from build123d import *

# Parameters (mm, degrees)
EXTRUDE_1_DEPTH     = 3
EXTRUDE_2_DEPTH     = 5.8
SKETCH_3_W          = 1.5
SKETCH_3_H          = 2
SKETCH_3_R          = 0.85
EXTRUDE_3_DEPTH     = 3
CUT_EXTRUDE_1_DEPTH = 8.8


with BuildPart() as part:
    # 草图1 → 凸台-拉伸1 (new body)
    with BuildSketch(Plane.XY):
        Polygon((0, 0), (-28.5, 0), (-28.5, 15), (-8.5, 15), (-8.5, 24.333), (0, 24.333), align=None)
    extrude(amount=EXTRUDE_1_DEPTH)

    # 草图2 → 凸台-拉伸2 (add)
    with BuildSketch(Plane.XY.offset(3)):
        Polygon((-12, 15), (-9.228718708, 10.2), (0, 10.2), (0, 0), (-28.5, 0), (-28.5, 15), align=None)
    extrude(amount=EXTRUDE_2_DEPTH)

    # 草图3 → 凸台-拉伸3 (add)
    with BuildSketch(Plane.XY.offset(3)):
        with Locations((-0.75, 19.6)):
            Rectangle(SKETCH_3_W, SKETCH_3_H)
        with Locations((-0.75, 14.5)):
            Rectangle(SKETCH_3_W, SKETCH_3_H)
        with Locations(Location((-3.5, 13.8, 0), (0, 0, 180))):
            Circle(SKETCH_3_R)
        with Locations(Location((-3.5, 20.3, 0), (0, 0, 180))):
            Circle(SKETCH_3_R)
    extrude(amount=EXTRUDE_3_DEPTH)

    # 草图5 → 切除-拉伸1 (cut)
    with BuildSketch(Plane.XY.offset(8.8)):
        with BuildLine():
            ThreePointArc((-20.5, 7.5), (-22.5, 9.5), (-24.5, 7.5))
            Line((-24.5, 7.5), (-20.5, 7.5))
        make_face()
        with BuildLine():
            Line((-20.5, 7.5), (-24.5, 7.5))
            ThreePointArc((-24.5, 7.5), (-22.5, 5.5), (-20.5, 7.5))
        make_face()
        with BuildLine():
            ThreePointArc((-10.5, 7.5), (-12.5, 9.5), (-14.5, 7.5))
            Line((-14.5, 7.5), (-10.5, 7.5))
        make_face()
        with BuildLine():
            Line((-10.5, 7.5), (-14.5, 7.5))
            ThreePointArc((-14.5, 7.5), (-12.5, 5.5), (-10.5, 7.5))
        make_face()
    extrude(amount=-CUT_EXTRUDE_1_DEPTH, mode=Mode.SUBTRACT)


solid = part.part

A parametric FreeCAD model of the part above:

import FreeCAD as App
import Part
import Sketcher
from FreeCAD import Vector
Q = App.Units.Quantity


def add_polygon(sketch, points):
    """Adds a closed chain of lines whose ends are joined by coincident constraints."""
    first, n = sketch.GeometryCount, len(points)
    for a, b in zip(points, points[1:] + points[:1]):
        sketch.addGeometry(Part.LineSegment(App.Vector(*a, 0), App.Vector(*b, 0)), False)
    for i in range(n):
        sketch.addConstraint(Sketcher.Constraint("Coincident", first + i, 2, first + (i + 1) % n, 1))

doc = App.newDocument("Part")
body = doc.addObject("PartDesign::Body", "Body")

# Sketch on XY plane
sketch1 = doc.addObject("Sketcher::SketchObject", "Sketch")
body.addObject(sketch1)
sketch1.AttachmentSupport = (doc.XY_Plane, [""])
sketch1.MapMode = "FlatFace"
add_polygon(sketch1, [(-28, 0), (0, 0), (0, 24), (-8, 24), (-8, 15), (-28, 15)])  # lines 0-5
sketch1.addConstraint(Sketcher.Constraint("Horizontal", 0))
sketch1.addConstraint(Sketcher.Constraint("Vertical", 1))
sketch1.addConstraint(Sketcher.Constraint("Horizontal", 2))
sketch1.addConstraint(Sketcher.Constraint("Vertical", 3))
sketch1.addConstraint(Sketcher.Constraint("Horizontal", 4))
sketch1.addConstraint(Sketcher.Constraint("Vertical", 5))
sketch1.addConstraint(Sketcher.Constraint("Coincident", 0, 2, -1, 1))
sketch1.addConstraint(Sketcher.Constraint("DistanceX", 4, 2, 4, 1, Q("20 mm")))
sketch1.addConstraint(Sketcher.Constraint("DistanceY", 5, 2, 5, 1, Q("15 mm")))
sketch1.addConstraint(Sketcher.Constraint("DistanceX", 0, 1, 0, 2, Q("28.5 mm")))
sketch1.addConstraint(Sketcher.Constraint("DistanceY", 1, 1, 1, 2, Q("24.333 mm")))
pad1 = doc.addObject("PartDesign::Pad", "Pad")
body.addObject(pad1)
pad1.Profile = sketch1
pad1.Length = 3

# Sketch on XY plane
sketch2 = doc.addObject("Sketcher::SketchObject", "Sketch001")
body.addObject(sketch2)
sketch2.AttachmentSupport = (doc.XY_Plane, [""])
sketch2.MapMode = "FlatFace"
sketch2.AttachmentOffset = App.Placement(Vector(0, 0, 3), App.Rotation())
add_polygon(sketch2, [(-9, 10), (-12, 15), (-28, 15), (-28, 0), (0, 0), (0, 10)])  # lines 0-5
sketch2.addConstraint(Sketcher.Constraint("Horizontal", 1))
sketch2.addConstraint(Sketcher.Constraint("Vertical", 2))
sketch2.addConstraint(Sketcher.Constraint("Horizontal", 3))
sketch2.addConstraint(Sketcher.Constraint("Vertical", 4))
sketch2.addConstraint(Sketcher.Constraint("Horizontal", 5))
sketch2.addConstraint(Sketcher.Constraint("Coincident", 3, 2, -1, 1))
sketch2.addConstraint(Sketcher.Constraint("DistanceY", 2, 2, 2, 1, Q("15 mm")))
sketch2.addConstraint(Sketcher.Constraint("Angle", 0, Q("120 deg")))
sketch2.addConstraint(Sketcher.Constraint("DistanceX", 1, 2, 1, 1, Q("16.5 mm")))
sketch2.addConstraint(Sketcher.Constraint("DistanceX", 3, 1, 3, 2, Q("28.5 mm")))
sketch2.addConstraint(Sketcher.Constraint("DistanceY", 4, 1, 4, 2, Q("10.2 mm")))
pad2 = doc.addObject("PartDesign::Pad", "Pad001")
body.addObject(pad2)
pad2.Profile = sketch2
pad2.Length = 5.8

# Sketch on XY plane
sketch3 = doc.addObject("Sketcher::SketchObject", "Sketch002")
body.addObject(sketch3)
sketch3.AttachmentSupport = (doc.XY_Plane, [""])
sketch3.MapMode = "FlatFace"
sketch3.AttachmentOffset = App.Placement(Vector(0, 0, 3), App.Rotation())
add_polygon(sketch3, [(-1.5, 20.6), (-1.5, 18.6), (0, 18.6), (0, 20.6)])  # lines 0-3
add_polygon(sketch3, [(-1.5, 15.5), (-1.5, 13.5), (0, 13.5), (0, 15.5)])  # lines 4-7
sketch3.addGeometry(Part.Circle(Vector(-3.5, 13.8, 0), Vector(0, 0, 1), 0.8), False)  # 8
sketch3.addGeometry(Part.Circle(Vector(-3.5, 20.3, 0), Vector(0, 0, 1), 0.8), False)  # 9
sketch3.addConstraint(Sketcher.Constraint("Vertical", 0))
sketch3.addConstraint(Sketcher.Constraint("Horizontal", 1))
sketch3.addConstraint(Sketcher.Constraint("Vertical", 2))
sketch3.addConstraint(Sketcher.Constraint("Horizontal", 3))
sketch3.addConstraint(Sketcher.Constraint("Vertical", 4))
sketch3.addConstraint(Sketcher.Constraint("Horizontal", 5))
sketch3.addConstraint(Sketcher.Constraint("Vertical", 6))
sketch3.addConstraint(Sketcher.Constraint("Horizontal", 7))
sketch3.addConstraint(Sketcher.Constraint("Equal", 8, 9))
sketch3.addConstraint(Sketcher.Constraint("PointOnObject", 1, 2, -2))
sketch3.addConstraint(Sketcher.Constraint("PointOnObject", 5, 2, -2))
sketch3.addConstraint(Sketcher.Constraint("Vertical", 8, 3, 9, 3))
sketch3.addConstraint(Sketcher.Constraint("Vertical", 3, 2, 4, 2))
sketch3.addConstraint(Sketcher.Constraint("Equal", 2, 4))
sketch3.addConstraint(Sketcher.Constraint("Diameter", 8, Q("1.7 mm")))
sketch3.addConstraint(Sketcher.Constraint("DistanceY", 0, 2, 0, 1, Q("2 mm")))
sketch3.addConstraint(Sketcher.Constraint("DistanceX", 1, 1, 1, 2, Q("1.5 mm")))
sketch3.addConstraint(Sketcher.Constraint("DistanceX", 9, 3, 0, 2, Q("2 mm")))
sketch3.addConstraint(Sketcher.Constraint("DistanceY", -1, 1, 8, 3, Q("13.8 mm")))
sketch3.addConstraint(Sketcher.Constraint("DistanceY", -1, 1, 9, 3, Q("20.3 mm")))
sketch3.addConstraint(Sketcher.Constraint("DistanceY", -1, 1, 0, 2, Q("18.6 mm")))
sketch3.addConstraint(Sketcher.Constraint("DistanceY", -1, 1, 4, 2, Q("13.5 mm")))
pad3 = doc.addObject("PartDesign::Pad", "Pad002")
body.addObject(pad3)
pad3.Profile = sketch3
pad3.Length = 3

# Sketch on XY plane
sketch4 = doc.addObject("Sketcher::SketchObject", "Sketch003")
body.addObject(sketch4)
sketch4.AttachmentSupport = (doc.XY_Plane, [""])
sketch4.MapMode = "FlatFace"
sketch4.AttachmentOffset = App.Placement(Vector(0, 0, 8.8), App.Rotation())
sketch4.addGeometry(Part.Circle(Vector(-22.5, 7.5, 0), Vector(0, 0, 1), 2), False)
sketch4.addGeometry(Part.Circle(Vector(-12.5, 7.5, 0), Vector(0, 0, 1), 2), False)
sketch4.addConstraint(Sketcher.Constraint("Equal", 0, 1))
sketch4.addConstraint(Sketcher.Constraint("Horizontal", 0, 3, 1, 3))
sketch4.addConstraint(Sketcher.Constraint("Diameter", 0, Q("4 mm")))
sketch4.addConstraint(Sketcher.Constraint("DistanceX", 0, 3, 1, 3, Q("10 mm")))
sketch4.addConstraint(Sketcher.Constraint("DistanceX", 0, 3, -1, 1, Q("22.5 mm")))
sketch4.addConstraint(Sketcher.Constraint("DistanceY", -1, 1, 0, 3, Q("7.5 mm")))
pocket1 = doc.addObject("PartDesign::Pocket", "Pocket")
body.addObject(pocket1)
pocket1.Profile = sketch4
pocket1.Length = 8.8

doc.recompute()
